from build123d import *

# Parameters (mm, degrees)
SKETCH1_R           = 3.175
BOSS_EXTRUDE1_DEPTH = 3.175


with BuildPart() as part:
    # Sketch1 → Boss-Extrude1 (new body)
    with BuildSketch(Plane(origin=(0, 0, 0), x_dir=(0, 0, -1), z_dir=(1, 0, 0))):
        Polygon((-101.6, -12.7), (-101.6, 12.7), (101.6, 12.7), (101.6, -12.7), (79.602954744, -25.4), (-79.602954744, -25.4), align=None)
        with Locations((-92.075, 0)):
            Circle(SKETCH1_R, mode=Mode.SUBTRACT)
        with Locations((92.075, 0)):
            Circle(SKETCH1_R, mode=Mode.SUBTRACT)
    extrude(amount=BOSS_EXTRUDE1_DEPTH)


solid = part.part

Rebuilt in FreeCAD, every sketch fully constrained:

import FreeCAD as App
import Part
import Sketcher
Q = App.Units.Quantity


def add_polygon(sketch, points):
    """Adds a closed chain of lines whose ends are joined by coincident constraints."""
    first, n = sketch.GeometryCount, len(points)
    for a, b in zip(points, points[1:] + points[:1]):
        sketch.addGeometry(Part.LineSegment(App.Vector(*a, 0), App.Vector(*b, 0)), False)
    for i in range(n):
        sketch.addConstraint(Sketcher.Constraint("Coincident", first + i, 2, first + (i + 1) % n, 1))

doc = App.newDocument("Part")
body = doc.addObject("PartDesign::Body", "Body")

sketch1 = body.newObject("Sketcher::SketchObject", "Sketch")
sketch1.AttachmentSupport = (doc.getObject("YZ_Plane"), [""])
sketch1.MapMode = "FlatFace"
add_polygon(sketch1, [(12.7, 101.6), (-12.7, 101.6), (-25.4, 79.6), (-25.4, -79.6), (-12.7, -101.6), (12.7, -101.6)])
sketch1.addGeometry(Part.Circle(App.Vector(0, -92.1, 0), App.Vector(0, 0, 1), 3.2), False)
sketch1.addGeometry(Part.Circle(App.Vector(0, 92.1, 0), App.Vector(0, 0, 1), 3.2), False)
sketch1.addConstraint([
    Sketcher.Constraint("Horizontal", 0),
    Sketcher.Constraint("Vertical", 2),
    Sketcher.Constraint("Horizontal", 4),
    Sketcher.Constraint("Vertical", 5),
    Sketcher.Constraint("Equal", 6, 7),
    Sketcher.Constraint("Symmetric", 6, 3, 7, 3, -1, 1),
    Sketcher.Constraint("Symmetric", 0, 2, 4, 2, -1, 1),
    Sketcher.Constraint("PointOnObject", 6, 3, -2),
    Sketcher.Constraint("Vertical", 0, 2, 3, 2),
    Sketcher.Constraint("Equal", 1, 3),
    Sketcher.Constraint("Diameter", 6, Q("0.25 in")),
    Sketcher.Constraint("DistanceX", 0, 2, 0, 1, Q("1 in")),
    Sketcher.Constraint("DistanceY", 5, 1, 5, 2, Q("8 in")),
    Sketcher.Constraint("Distance", 1, Q("1 in")),
    Sketcher.Constraint("DistanceX", 1, 2, -1, 1, Q("1 in")),
    Sketcher.Constraint("DistanceY", 6, 3, 7, 3, Q("7.25 in")),
])
pad1 = body.newObject("PartDesign::Pad", "Pad")
pad1.Profile = sketch1
pad1.Length = Q("0.125 in")

doc.recompute()
